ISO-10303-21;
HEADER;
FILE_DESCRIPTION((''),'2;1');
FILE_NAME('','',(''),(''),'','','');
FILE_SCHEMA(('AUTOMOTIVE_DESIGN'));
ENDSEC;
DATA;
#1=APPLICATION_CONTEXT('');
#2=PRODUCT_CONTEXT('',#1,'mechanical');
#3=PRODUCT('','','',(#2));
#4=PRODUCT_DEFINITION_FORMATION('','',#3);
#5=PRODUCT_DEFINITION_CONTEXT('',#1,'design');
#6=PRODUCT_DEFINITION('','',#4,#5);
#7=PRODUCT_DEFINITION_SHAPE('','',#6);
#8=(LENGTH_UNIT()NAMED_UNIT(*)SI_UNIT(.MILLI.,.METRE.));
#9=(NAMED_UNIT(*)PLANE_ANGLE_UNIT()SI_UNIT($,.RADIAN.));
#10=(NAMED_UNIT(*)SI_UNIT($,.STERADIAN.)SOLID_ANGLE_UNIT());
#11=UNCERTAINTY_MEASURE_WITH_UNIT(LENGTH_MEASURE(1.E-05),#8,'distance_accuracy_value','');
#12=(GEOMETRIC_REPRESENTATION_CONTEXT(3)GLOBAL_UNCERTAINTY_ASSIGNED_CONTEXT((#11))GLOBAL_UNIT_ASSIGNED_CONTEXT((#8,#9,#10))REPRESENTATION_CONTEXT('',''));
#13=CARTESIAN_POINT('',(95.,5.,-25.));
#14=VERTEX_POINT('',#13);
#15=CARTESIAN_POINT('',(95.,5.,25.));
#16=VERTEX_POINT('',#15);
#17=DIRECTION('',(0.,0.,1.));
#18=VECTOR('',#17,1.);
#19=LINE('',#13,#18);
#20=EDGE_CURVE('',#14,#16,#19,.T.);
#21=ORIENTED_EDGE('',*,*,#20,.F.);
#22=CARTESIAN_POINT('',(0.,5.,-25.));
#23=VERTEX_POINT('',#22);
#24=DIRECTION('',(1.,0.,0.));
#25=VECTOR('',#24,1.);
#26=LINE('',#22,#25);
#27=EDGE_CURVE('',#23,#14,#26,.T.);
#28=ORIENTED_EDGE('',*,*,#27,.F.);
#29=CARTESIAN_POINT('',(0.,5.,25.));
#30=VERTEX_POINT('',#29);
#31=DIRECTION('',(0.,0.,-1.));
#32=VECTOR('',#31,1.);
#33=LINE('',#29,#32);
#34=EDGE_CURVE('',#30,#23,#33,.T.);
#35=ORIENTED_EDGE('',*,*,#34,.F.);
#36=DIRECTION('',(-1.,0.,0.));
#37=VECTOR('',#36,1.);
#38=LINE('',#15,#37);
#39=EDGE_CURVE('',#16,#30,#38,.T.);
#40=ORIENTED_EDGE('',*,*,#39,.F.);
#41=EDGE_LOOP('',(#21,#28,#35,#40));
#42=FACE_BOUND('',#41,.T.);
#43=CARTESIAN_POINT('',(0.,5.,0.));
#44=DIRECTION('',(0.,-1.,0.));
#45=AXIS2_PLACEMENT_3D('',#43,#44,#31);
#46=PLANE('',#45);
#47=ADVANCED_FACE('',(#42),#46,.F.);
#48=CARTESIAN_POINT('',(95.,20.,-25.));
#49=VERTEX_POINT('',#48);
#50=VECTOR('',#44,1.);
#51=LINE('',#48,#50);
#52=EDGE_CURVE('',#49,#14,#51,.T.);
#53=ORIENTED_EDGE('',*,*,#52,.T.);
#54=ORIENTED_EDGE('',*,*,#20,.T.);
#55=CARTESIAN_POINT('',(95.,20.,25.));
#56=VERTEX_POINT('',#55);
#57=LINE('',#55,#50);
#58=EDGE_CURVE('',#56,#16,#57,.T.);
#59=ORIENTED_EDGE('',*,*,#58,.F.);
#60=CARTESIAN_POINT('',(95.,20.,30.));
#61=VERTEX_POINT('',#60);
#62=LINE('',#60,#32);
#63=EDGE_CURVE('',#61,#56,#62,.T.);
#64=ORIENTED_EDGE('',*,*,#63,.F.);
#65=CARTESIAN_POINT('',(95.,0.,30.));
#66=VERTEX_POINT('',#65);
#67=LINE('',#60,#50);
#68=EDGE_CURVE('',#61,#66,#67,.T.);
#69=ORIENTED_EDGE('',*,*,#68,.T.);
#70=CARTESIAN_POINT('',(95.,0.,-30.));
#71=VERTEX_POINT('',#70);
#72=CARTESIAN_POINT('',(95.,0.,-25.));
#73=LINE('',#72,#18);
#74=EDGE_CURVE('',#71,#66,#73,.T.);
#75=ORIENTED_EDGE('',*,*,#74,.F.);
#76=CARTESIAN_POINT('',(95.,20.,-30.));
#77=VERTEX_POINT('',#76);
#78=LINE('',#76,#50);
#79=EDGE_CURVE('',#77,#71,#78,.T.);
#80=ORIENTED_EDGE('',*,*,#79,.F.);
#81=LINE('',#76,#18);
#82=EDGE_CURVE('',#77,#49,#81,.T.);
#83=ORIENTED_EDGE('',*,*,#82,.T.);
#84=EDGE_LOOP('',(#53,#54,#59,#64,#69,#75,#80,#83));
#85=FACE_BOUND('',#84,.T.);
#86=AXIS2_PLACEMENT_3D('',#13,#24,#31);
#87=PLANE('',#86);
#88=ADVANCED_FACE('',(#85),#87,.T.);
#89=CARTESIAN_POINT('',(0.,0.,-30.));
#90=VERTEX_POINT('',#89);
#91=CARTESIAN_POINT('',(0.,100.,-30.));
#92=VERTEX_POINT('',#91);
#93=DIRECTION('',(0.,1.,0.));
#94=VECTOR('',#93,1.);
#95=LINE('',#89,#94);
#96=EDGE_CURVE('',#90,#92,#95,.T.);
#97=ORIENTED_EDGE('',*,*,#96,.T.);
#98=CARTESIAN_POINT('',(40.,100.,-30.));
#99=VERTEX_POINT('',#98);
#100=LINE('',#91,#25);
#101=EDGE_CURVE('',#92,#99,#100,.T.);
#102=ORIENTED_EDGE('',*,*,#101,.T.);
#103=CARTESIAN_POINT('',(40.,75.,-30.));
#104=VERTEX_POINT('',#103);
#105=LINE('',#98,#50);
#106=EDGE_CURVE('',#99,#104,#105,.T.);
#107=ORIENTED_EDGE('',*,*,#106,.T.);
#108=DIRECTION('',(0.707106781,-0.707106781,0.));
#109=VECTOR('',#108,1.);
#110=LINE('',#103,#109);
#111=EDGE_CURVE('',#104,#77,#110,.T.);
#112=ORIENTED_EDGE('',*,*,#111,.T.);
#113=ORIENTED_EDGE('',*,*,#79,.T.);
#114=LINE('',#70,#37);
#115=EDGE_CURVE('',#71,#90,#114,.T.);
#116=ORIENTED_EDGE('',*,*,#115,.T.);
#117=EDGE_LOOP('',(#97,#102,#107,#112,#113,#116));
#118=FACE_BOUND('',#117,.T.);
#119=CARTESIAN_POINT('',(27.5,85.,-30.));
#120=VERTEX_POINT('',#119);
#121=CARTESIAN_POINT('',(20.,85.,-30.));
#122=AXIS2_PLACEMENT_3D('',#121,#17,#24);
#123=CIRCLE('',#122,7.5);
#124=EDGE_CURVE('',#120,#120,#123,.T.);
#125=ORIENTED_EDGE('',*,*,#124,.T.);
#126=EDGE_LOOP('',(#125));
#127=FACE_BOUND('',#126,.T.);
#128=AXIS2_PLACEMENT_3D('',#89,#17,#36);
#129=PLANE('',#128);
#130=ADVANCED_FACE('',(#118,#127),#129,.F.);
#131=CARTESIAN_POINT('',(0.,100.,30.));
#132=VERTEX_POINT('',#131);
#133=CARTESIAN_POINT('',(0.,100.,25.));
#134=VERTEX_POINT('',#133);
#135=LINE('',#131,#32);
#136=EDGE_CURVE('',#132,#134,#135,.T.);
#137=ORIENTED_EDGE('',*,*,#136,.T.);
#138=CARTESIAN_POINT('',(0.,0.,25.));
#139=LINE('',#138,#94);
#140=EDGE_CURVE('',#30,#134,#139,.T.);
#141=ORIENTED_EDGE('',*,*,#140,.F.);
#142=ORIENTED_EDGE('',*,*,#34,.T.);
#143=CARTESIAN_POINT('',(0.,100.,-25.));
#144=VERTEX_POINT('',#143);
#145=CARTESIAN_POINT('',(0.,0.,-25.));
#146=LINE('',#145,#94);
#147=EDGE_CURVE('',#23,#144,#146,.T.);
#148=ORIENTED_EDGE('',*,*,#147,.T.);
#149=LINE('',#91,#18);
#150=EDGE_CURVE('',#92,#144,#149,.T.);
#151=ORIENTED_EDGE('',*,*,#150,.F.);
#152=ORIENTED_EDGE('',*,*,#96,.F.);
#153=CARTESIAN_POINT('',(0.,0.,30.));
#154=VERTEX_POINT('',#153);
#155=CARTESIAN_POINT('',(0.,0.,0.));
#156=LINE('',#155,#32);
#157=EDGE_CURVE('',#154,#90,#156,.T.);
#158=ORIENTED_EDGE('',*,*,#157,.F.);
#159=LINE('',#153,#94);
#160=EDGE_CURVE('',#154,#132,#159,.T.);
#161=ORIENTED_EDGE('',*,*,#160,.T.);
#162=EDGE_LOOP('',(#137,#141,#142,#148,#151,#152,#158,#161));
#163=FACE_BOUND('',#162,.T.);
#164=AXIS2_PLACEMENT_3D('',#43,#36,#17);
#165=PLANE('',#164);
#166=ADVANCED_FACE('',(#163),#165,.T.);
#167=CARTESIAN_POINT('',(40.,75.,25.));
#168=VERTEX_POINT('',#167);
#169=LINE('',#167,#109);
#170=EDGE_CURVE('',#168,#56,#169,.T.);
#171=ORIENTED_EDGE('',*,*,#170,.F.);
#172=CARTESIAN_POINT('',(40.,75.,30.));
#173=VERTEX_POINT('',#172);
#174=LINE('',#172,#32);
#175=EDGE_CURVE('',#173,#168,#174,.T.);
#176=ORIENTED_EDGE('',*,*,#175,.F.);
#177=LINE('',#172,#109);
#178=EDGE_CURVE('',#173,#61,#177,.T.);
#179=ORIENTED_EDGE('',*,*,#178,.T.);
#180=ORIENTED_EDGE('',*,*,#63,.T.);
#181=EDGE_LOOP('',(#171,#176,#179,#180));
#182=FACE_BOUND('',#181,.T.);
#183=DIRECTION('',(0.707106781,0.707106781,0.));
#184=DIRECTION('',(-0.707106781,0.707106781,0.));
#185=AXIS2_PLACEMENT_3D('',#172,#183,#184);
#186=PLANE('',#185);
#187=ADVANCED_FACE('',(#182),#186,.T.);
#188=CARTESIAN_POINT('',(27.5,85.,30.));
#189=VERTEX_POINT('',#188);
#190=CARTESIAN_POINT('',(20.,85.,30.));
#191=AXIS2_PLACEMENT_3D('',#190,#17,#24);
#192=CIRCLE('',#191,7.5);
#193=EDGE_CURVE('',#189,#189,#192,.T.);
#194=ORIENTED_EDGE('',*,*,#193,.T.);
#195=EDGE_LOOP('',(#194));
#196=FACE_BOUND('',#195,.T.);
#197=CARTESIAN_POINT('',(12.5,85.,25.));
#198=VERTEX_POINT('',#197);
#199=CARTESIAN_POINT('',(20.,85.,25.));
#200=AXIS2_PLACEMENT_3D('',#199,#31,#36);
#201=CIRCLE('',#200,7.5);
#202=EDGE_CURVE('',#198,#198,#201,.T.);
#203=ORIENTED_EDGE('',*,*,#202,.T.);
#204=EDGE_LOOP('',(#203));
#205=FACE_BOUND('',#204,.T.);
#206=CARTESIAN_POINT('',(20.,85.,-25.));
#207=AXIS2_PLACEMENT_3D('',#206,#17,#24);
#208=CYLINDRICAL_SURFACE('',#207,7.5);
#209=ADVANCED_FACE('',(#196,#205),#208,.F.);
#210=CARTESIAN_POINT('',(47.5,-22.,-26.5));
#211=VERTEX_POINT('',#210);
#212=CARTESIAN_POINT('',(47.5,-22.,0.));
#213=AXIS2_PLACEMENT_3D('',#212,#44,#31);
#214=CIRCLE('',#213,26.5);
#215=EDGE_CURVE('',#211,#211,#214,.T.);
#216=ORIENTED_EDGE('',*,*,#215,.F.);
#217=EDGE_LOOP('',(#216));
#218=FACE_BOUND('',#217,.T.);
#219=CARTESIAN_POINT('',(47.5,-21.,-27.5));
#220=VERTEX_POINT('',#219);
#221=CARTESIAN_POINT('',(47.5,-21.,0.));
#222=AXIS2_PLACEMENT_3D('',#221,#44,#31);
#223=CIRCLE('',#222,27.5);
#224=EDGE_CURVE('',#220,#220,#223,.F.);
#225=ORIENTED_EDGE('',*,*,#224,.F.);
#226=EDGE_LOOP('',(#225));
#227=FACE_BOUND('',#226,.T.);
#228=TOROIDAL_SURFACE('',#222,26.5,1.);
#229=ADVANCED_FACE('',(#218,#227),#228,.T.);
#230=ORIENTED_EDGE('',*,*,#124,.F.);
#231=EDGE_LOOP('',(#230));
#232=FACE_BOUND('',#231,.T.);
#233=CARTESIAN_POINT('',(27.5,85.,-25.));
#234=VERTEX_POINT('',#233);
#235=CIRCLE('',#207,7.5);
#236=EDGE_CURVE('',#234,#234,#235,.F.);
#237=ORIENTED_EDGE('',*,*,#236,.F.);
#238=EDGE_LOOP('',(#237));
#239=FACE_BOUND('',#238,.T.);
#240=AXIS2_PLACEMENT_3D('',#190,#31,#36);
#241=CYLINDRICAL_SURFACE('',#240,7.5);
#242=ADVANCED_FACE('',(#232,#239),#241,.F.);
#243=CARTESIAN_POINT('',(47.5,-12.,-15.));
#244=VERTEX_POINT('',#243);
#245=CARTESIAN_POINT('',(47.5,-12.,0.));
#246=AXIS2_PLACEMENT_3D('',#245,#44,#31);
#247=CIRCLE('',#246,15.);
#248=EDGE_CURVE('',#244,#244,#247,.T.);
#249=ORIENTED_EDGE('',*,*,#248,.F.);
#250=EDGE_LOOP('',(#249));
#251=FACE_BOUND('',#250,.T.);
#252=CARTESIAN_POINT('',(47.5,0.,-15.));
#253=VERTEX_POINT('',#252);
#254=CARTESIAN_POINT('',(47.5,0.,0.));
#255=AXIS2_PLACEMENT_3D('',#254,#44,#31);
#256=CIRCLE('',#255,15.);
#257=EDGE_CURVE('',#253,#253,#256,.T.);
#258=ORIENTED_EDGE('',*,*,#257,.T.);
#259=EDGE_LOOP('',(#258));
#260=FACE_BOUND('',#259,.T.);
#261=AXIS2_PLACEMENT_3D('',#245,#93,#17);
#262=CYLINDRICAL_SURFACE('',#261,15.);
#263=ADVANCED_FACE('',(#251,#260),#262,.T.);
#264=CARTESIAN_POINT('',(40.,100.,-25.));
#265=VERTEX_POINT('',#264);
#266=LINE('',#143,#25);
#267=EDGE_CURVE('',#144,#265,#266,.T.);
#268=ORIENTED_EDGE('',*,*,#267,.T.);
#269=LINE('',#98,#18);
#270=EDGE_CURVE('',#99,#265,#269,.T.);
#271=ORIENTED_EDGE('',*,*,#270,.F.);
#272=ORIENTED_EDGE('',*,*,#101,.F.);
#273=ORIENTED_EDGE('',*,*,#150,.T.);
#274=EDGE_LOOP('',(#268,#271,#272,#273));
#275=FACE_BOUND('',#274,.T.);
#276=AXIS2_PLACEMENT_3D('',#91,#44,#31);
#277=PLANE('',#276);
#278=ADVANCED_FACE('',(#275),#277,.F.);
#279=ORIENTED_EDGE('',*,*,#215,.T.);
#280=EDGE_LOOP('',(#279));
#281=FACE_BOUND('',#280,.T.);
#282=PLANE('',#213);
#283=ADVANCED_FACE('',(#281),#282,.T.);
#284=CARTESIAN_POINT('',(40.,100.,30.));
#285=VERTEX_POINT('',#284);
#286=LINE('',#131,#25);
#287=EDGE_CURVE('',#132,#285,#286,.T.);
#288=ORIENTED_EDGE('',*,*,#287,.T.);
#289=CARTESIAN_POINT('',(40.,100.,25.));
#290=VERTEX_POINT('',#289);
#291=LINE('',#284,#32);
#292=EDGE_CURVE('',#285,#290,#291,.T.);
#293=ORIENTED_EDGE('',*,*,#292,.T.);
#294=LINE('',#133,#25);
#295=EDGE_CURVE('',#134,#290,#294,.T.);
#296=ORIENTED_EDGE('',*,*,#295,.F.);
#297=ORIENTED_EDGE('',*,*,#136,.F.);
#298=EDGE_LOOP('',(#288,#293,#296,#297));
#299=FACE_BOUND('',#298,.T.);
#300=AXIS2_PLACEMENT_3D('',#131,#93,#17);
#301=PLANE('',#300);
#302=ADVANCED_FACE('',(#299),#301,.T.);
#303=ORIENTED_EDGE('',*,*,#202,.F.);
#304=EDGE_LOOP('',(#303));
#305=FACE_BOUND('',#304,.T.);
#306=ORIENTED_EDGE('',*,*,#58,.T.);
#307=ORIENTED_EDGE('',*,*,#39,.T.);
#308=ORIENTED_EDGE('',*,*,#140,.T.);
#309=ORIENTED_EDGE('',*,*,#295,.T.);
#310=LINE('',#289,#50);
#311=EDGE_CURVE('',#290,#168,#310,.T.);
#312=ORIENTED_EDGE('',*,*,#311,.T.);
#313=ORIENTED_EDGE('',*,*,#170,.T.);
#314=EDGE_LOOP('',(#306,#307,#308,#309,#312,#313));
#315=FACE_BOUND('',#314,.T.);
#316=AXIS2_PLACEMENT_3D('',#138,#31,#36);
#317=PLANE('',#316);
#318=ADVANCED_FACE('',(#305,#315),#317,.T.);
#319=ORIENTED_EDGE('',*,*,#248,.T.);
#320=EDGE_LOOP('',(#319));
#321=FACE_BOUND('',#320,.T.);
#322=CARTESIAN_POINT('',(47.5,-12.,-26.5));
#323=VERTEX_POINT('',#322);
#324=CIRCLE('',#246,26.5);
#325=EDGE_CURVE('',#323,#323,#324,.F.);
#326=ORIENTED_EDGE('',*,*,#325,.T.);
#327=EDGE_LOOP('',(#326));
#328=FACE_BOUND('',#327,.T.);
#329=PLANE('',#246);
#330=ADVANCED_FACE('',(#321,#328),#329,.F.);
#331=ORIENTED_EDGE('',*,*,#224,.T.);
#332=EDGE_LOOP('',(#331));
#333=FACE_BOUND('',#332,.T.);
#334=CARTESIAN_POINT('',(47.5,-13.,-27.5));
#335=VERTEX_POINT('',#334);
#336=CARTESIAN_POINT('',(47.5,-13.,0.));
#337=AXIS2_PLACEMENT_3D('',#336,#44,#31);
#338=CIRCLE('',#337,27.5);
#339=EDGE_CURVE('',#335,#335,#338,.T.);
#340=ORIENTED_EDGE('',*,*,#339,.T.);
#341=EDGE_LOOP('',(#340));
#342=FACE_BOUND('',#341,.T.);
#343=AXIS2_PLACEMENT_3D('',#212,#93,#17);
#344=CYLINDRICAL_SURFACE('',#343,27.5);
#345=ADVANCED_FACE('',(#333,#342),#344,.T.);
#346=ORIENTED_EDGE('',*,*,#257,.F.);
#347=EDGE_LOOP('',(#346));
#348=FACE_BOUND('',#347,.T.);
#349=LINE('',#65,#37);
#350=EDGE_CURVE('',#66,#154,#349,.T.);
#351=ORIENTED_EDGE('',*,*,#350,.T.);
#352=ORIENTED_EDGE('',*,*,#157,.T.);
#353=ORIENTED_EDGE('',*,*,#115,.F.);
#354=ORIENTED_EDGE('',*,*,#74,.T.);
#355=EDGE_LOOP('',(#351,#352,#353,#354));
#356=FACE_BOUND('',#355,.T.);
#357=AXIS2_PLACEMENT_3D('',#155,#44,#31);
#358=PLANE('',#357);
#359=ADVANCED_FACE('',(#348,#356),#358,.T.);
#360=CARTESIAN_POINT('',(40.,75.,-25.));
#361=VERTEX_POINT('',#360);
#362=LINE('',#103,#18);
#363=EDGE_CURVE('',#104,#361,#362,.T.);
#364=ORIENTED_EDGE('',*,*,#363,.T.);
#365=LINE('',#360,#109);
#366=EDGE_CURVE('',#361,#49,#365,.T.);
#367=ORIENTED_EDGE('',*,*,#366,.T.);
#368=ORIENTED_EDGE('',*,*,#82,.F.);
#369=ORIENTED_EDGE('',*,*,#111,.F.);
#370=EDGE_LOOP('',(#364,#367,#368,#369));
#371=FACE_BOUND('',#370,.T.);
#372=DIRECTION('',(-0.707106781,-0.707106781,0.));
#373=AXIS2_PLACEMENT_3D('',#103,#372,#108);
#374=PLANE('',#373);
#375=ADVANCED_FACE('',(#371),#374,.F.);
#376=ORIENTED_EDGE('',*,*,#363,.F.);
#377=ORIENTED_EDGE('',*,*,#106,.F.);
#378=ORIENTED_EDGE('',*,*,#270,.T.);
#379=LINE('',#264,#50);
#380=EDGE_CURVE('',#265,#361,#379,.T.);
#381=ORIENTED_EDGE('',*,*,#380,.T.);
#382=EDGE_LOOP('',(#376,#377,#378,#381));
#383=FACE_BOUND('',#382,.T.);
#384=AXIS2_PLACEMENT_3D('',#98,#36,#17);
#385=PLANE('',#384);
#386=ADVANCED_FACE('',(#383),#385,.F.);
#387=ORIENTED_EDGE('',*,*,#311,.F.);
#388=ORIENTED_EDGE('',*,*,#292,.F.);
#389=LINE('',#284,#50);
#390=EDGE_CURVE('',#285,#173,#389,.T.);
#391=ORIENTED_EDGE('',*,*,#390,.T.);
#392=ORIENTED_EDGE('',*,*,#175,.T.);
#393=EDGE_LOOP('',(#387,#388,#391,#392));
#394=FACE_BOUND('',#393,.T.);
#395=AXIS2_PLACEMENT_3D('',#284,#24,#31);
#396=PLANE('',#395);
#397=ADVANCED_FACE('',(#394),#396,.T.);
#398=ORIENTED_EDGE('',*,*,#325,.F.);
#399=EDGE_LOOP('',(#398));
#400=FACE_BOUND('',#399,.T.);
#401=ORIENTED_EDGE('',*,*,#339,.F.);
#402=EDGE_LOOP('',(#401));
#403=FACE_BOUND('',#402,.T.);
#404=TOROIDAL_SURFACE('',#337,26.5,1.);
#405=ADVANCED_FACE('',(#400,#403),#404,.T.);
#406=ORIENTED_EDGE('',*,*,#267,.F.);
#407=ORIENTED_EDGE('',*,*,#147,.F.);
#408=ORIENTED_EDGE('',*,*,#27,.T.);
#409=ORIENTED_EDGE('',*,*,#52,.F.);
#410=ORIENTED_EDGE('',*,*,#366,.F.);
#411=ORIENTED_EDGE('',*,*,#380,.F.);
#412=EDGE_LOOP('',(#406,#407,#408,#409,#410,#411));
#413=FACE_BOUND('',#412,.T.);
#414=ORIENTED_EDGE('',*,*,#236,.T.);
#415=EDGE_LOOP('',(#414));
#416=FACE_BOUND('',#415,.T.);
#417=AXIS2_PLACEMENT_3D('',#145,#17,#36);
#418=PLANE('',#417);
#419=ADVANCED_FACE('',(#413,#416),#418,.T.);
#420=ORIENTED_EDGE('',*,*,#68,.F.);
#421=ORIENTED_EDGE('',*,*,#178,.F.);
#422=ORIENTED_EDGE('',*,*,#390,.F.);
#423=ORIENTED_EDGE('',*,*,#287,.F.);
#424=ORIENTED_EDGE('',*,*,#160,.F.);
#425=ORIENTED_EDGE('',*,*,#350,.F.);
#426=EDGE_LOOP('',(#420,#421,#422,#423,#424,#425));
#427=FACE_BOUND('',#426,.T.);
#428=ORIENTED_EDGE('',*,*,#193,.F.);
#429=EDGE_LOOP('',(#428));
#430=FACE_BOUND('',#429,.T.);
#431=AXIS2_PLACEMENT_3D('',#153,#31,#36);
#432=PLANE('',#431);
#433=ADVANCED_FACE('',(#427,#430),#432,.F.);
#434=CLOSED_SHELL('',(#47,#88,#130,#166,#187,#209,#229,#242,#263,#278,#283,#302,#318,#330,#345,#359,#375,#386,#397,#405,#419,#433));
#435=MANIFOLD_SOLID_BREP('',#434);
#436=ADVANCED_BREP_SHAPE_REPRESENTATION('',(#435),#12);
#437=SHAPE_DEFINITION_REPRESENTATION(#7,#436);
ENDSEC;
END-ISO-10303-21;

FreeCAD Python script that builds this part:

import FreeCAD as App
import Part
import Sketcher
Q = App.Units.Quantity


def edges_at(feature, points):
    """Names of the edges that pass closest to the given points."""
    edges = feature.Shape.Edges
    near = lambda p: min(range(len(edges)), key=lambda i: edges[i].distToShape(Part.Vertex(*p))[0])
    return sorted({f"Edge{near(p) + 1}" for p in points})


def add_polygon(sketch, points):
    """Adds a closed chain of lines whose ends are joined by coincident constraints."""
    first, n = sketch.GeometryCount, len(points)
    for a, b in zip(points, points[1:] + points[:1]):
        sketch.addGeometry(Part.LineSegment(App.Vector(*a, 0), App.Vector(*b, 0)), False)
    for i in range(n):
        sketch.addConstraint(Sketcher.Constraint("Coincident", first + i, 2, first + (i + 1) % n, 1))

doc = App.newDocument("Part")
body = doc.addObject("PartDesign::Body", "Body")

# Sketch on XZ plane
sketch1 = body.newObject("Sketcher::SketchObject", "Sketch")
sketch1.AttachmentSupport = (doc.getObject("XZ_Plane"), [""])
sketch1.MapMode = "FlatFace"
add_polygon(sketch1, [(0, -25), (0, 25), (95, 25), (95, -25)])  # lines 0-3
sketch1.addConstraint([
    Sketcher.Constraint("Vertical", 0),
    Sketcher.Constraint("Horizontal", 1),
    Sketcher.Constraint("Vertical", 2),
    Sketcher.Constraint("Horizontal", 3),
    Sketcher.Constraint("Symmetric", 0, 2, 3, 2, -1, 1),
    Sketcher.Constraint("DistanceX", 1, 1, 1, 2, Q("95 mm")),
    Sketcher.Constraint("DistanceY", 0, 1, 0, 2, Q("50 mm")),
])
pad1 = body.newObject("PartDesign::Pad", "Pad")
pad1.Profile = sketch1
pad1.Length = 5
pad1.Reversed = True

# Sketch on XY plane
sketch2 = body.newObject("Sketcher::SketchObject", "Sketch001")
sketch2.AttachmentSupport = (doc.getObject("XY_Plane"), [""])
sketch2.MapMode = "FlatFace"
sketch2.AttachmentOffset = App.Placement(App.Vector(0, 0, 25), App.Rotation())
add_polygon(sketch2, [(0, 100), (0, 0), (95, 0), (95, 20), (40, 75), (40, 100)])  # lines 0-5
sketch2.addConstraint([
    Sketcher.Constraint("Vertical", 0),
    Sketcher.Constraint("Horizontal", 1),
    Sketcher.Constraint("Vertical", 2),
    Sketcher.Constraint("Vertical", 4),
    Sketcher.Constraint("Horizontal", 5),
    Sketcher.Constraint("Coincident", 0, 2, -1, 1),
    Sketcher.Constraint("DistanceX", 1, 1, 1, 2, Q("95 mm")),
    Sketcher.Constraint("DistanceX", 5, 2, 5, 1, Q("40 mm")),
    Sketcher.Constraint("DistanceY", 0, 2, 0, 1, Q("100 mm")),
    Sketcher.Constraint("DistanceY", 2, 1, 2, 2, Q("20 mm")),
    Sketcher.Constraint("DistanceY", 4, 1, 4, 2, Q("25 mm")),
])
pad2 = body.newObject("PartDesign::Pad", "Pad001")
pad2.Profile = sketch2
pad2.Length = 5

# Sketch on XY plane
sketch3 = body.newObject("Sketcher::SketchObject", "Sketch002")
sketch3.AttachmentSupport = (doc.getObject("XY_Plane"), [""])
sketch3.MapMode = "FlatFace"
sketch3.AttachmentOffset = App.Placement(App.Vector(0, 0, 30), App.Rotation())
sketch3.addGeometry(Part.Circle(App.Vector(20, 85, 0), App.Vector(0, 0, 1), 7.5), False)
sketch3.addConstraint([
    Sketcher.Constraint("Diameter", 0, Q("15 mm")),
    Sketcher.Constraint("DistanceX", -1, 1, 0, 3, Q("20 mm")),
    Sketcher.Constraint("DistanceY", -1, 1, 0, 3, Q("85 mm")),
])
pocket1 = body.newObject("PartDesign::Pocket", "Pocket")
pocket1.Profile = sketch3
pocket1.Type = "ThroughAll"
doc.recompute()

mirrored = body.newObject("PartDesign::Mirrored", "Mirrored")
mirrored.Originals = [pad2, pocket1]
mirrored.MirrorPlane = (doc.getObject("XY_Plane"), [""])
body.Tip = mirrored

# Sketch on XZ plane
sketch4 = body.newObject("Sketcher::SketchObject", "Sketch003")
sketch4.AttachmentSupport = (doc.getObject("XZ_Plane"), [""])
sketch4.MapMode = "FlatFace"
sketch4.addGeometry(Part.Circle(App.Vector(47.5, 0, 0), App.Vector(0, 0, 1), 15), False)
sketch4.addConstraint([
    Sketcher.Constraint("PointOnObject", 0, 3, -1),
    Sketcher.Constraint("Diameter", 0, Q("30 mm")),
    Sketcher.Constraint("DistanceX", -1, 1, 0, 3, Q("47.5 mm")),
])
pad3 = body.newObject("PartDesign::Pad", "Pad002")
pad3.Profile = sketch4
pad3.Length = 12

# Sketch on XZ plane
sketch5 = body.newObject("Sketcher::SketchObject", "Sketch004")
sketch5.AttachmentSupport = (doc.getObject("XZ_Plane"), [""])
sketch5.MapMode = "FlatFace"
sketch5.AttachmentOffset = App.Placement(App.Vector(0, 0, 12), App.Rotation())
sketch5.addGeometry(Part.Circle(App.Vector(47.5, 0, 0), App.Vector(0, 0, 1), 27.5), False)
sketch5.addConstraint([
    Sketcher.Constraint("PointOnObject", 0, 3, -1),
    Sketcher.Constraint("Diameter", 0, Q("55 mm")),
    Sketcher.Constraint("DistanceX", -1, 1, 0, 3, Q("47.5 mm")),
])
pad4 = body.newObject("PartDesign::Pad", "Pad003")
pad4.Profile = sketch5
pad4.Length = 10
doc.recompute()

fillet = body.newObject("PartDesign::Fillet", "Fillet")
fillet.Base = (pad4, edges_at(pad4, [(47.5, -12, 27.5), (47.5, -22, 27.5)]))
fillet.Radius = 1

doc.recompute()
